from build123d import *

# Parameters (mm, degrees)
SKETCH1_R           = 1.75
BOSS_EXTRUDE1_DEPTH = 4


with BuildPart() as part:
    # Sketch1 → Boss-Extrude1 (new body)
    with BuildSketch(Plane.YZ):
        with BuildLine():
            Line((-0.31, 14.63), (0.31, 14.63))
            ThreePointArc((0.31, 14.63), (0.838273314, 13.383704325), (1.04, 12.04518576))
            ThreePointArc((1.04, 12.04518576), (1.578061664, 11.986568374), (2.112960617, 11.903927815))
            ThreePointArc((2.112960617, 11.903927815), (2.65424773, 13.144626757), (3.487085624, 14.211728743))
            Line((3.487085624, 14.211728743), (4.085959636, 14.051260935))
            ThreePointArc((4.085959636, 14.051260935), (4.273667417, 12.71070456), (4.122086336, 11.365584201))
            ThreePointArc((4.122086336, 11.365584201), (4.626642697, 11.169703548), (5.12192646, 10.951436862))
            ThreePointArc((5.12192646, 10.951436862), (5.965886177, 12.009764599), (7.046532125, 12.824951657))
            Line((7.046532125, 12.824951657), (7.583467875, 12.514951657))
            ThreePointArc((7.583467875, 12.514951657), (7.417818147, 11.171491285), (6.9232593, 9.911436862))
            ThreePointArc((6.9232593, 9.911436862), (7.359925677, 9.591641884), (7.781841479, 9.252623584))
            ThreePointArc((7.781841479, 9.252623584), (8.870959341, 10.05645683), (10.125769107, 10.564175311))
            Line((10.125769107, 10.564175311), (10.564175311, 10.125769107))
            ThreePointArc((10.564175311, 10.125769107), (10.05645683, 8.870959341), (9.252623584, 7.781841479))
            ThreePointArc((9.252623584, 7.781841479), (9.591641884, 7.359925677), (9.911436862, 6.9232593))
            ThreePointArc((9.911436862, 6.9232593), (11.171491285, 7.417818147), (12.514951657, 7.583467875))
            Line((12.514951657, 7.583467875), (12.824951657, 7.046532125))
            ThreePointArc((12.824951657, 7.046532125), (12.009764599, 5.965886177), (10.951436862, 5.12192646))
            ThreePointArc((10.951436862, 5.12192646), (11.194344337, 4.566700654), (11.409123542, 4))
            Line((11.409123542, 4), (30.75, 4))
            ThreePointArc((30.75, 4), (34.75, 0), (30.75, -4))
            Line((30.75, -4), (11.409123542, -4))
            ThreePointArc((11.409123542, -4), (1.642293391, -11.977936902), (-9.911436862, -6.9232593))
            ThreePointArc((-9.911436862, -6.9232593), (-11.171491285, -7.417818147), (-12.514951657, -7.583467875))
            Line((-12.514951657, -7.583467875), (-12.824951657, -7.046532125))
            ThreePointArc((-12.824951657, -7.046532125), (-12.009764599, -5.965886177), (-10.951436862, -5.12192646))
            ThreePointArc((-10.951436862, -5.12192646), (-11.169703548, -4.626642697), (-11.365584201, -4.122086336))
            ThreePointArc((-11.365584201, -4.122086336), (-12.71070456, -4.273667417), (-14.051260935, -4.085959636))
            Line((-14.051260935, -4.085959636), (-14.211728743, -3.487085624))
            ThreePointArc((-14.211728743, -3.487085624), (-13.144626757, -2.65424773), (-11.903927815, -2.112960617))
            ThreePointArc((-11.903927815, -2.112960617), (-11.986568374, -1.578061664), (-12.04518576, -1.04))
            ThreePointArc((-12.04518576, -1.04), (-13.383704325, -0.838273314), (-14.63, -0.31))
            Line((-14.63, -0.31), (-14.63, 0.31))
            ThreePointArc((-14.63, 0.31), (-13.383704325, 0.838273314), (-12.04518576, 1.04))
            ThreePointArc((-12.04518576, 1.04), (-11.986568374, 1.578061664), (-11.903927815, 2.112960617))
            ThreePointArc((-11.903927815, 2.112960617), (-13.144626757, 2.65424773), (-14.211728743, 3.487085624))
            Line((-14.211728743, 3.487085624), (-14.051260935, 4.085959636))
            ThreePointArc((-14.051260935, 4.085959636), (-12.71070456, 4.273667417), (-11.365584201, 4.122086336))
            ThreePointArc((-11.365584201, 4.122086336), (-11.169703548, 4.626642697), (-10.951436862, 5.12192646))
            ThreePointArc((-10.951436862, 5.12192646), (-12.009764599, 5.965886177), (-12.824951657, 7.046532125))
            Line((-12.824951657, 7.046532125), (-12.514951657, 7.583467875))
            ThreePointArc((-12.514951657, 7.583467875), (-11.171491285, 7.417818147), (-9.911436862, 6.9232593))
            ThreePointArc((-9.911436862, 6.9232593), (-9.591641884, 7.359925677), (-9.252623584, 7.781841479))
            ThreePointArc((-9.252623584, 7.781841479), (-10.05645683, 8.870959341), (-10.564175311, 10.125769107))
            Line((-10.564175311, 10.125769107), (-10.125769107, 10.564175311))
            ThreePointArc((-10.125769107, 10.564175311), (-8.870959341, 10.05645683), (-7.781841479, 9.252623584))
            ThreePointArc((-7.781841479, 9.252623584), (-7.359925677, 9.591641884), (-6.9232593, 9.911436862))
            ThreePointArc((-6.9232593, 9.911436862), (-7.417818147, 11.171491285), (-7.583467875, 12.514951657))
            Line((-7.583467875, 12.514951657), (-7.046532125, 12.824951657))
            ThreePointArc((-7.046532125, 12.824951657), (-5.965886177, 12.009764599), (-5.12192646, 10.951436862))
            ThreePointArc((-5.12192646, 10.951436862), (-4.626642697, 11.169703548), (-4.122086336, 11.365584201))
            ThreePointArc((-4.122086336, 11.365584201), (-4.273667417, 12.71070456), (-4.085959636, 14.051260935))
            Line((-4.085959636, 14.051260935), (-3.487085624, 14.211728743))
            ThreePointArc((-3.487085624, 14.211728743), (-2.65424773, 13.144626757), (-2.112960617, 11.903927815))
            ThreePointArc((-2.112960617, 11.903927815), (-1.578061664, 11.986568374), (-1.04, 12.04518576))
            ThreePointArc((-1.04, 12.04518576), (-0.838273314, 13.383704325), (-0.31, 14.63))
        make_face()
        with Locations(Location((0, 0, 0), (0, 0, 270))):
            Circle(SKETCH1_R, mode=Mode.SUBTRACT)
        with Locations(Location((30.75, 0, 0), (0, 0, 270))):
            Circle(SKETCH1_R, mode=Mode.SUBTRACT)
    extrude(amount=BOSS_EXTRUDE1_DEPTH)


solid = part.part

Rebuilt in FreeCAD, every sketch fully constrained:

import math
import FreeCAD as App
import Part
import Sketcher
from FreeCAD import Vector
Q = App.Units.Quantity

doc = App.newDocument("Part")
body = doc.addObject("PartDesign::Body", "Body")

# Sketch on YZ plane
sketch1 = body.newObject("Sketcher::SketchObject", "Sketch")
sketch1.AttachmentSupport = (doc.getObject("YZ_Plane"), [""])
sketch1.MapMode = "FlatFace"
sketch1.addGeometry([
    Part.LineSegment(Vector(0.31, 14.63, 0), Vector(-0.31, 14.63, 0)),  # 0
    Part.ArcOfCircle(Part.Circle(Vector(4.358456, 11.916051, 0), Vector(0, 0, 1), 5.4), math.radians(149.828948), math.radians(178.629703)),  # 1
    Part.ArcOfCircle(Part.Circle(Vector(0, 0, 0), Vector(0, 0, 1), 12.09), math.radians(94.934768), math.radians(100.065232)),  # 2
    Part.ArcOfCircle(Part.Circle(Vector(-7.294046, 10.38197, 0), Vector(0, 0, 1), 5.4), math.radians(16.370297), math.radians(45.171052)),  # 3
    Part.LineSegment(Vector(-3.487086, 14.211729, 0), Vector(-4.08596, 14.051261, 0)),  # 4
    Part.ArcOfCircle(Part.Circle(Vector(1.125844, 12.638072, 0), Vector(0, 0, 1), 5.4), math.radians(164.828948), math.radians(193.629703)),  # 5
    Part.ArcOfCircle(Part.Circle(Vector(0, 0, 0), Vector(0, 0, 1), 12.09), math.radians(109.934768), math.radians(115.065232)),  # 6
    Part.ArcOfCircle(Part.Circle(Vector(-9.732559, 8.140375, 0), Vector(0, 0, 1), 5.4), math.radians(31.370297), math.radians(60.171052)),  # 7
    Part.LineSegment(Vector(-7.046532, 12.824952, 0), Vector(-7.583468, 12.514952, 0)),  # 8
    Part.ArcOfCircle(Part.Circle(Vector(-2.183492, 12.49883, 0), Vector(0, 0, 1), 5.4), math.radians(179.828948), math.radians(208.629703)),  # 9
    Part.ArcOfCircle(Part.Circle(Vector(0, 0, 0), Vector(0, 0, 1), 12.09), math.radians(124.934768), math.radians(130.065232)),  # 10
    Part.ArcOfCircle(Part.Circle(Vector(-11.507814, 5.344027, 0), Vector(0, 0, 1), 5.4), math.radians(46.370297), math.radians(75.171052)),  # 11
    Part.LineSegment(Vector(-10.125769, 10.564175, 0), Vector(-10.564175, 10.125769, 0)),  # 12
    Part.ArcOfCircle(Part.Circle(Vector(-5.344027, 11.507814, 0), Vector(0, 0, 1), 5.4), math.radians(-165.171052), math.radians(-136.370297)),  # 13
    Part.ArcOfCircle(Part.Circle(Vector(0, 0, 0), Vector(0, 0, 1), 12.09), math.radians(139.934768), math.radians(145.065232)),  # 14
    Part.ArcOfCircle(Part.Circle(Vector(-12.49883, 2.183492, 0), Vector(0, 0, 1), 5.4), math.radians(61.370297), math.radians(90.171052)),  # 15
    Part.LineSegment(Vector(-12.514952, 7.583468, 0), Vector(-12.824952, 7.046532, 0)),  # 16
    Part.ArcOfCircle(Part.Circle(Vector(-8.140375, 9.732559, 0), Vector(0, 0, 1), 5.4), math.radians(-150.171052), math.radians(-121.370297)),  # 17
    Part.ArcOfCircle(Part.Circle(Vector(0, 0, 0), Vector(0, 0, 1), 12.09), math.radians(154.934768), math.radians(160.065232)),  # 18
    Part.ArcOfCircle(Part.Circle(Vector(-12.638072, -1.125844, 0), Vector(0, 0, 1), 5.4), math.radians(76.370297), math.radians(105.171052)),  # 19
    Part.LineSegment(Vector(-14.051261, 4.08596, 0), Vector(-14.211729, 3.487086, 0)),  # 20
    Part.ArcOfCircle(Part.Circle(Vector(-10.38197, 7.294046, 0), Vector(0, 0, 1), 5.4), math.radians(-135.171052), math.radians(-106.370297)),  # 21
    Part.ArcOfCircle(Part.Circle(Vector(0, 0, 0), Vector(0, 0, 1), 12.09), math.radians(169.934768), math.radians(175.065232)),  # 22
    Part.ArcOfCircle(Part.Circle(Vector(-11.916051, -4.358456, 0), Vector(0, 0, 1), 5.4), math.radians(91.370297), math.radians(120.171052)),  # 23
    Part.LineSegment(Vector(-14.63, 0.31, 0), Vector(-14.63, -0.31, 0)),  # 24
    Part.ArcOfCircle(Part.Circle(Vector(-11.916051, 4.358456, 0), Vector(0, 0, 1), 5.4), math.radians(-120.171052), math.radians(-91.370297)),  # 25
    Part.ArcOfCircle(Part.Circle(Vector(0, 0, 0), Vector(0, 0, 1), 12.09), math.radians(-175.065232), math.radians(-169.934768)),  # 26
    Part.ArcOfCircle(Part.Circle(Vector(-10.38197, -7.294046, 0), Vector(0, 0, 1), 5.4), math.radians(106.370297), math.radians(135.171052)),  # 27
    Part.LineSegment(Vector(-14.211729, -3.487086, 0), Vector(-14.051261, -4.08596, 0)),  # 28
    Part.ArcOfCircle(Part.Circle(Vector(-12.638072, 1.125844, 0), Vector(0, 0, 1), 5.4), math.radians(-105.171052), math.radians(-76.370297)),  # 29
    Part.ArcOfCircle(Part.Circle(Vector(0, 0, 0), Vector(0, 0, 1), 12.09), math.radians(-160.065232), math.radians(-154.934768)),  # 30
    Part.ArcOfCircle(Part.Circle(Vector(-8.140375, -9.732559, 0), Vector(0, 0, 1), 5.4), math.radians(121.370297), math.radians(150.171052)),  # 31
    Part.LineSegment(Vector(-12.824952, -7.046532, 0), Vector(-12.514952, -7.583468, 0)),  # 32
    Part.ArcOfCircle(Part.Circle(Vector(-12.49883, -2.183492, 0), Vector(0, 0, 1), 5.4), math.radians(-90.171052), math.radians(-61.370297)),  # 33
    Part.ArcOfCircle(Part.Circle(Vector(0, 0, 0), Vector(0, 0, 1), 12.09), math.radians(-145.065232), math.radians(-19.320493)),  # 34
    Part.LineSegment(Vector(11.409124, -4, 0), Vector(30.75, -4, 0)),  # 35
    Part.ArcOfCircle(Part.Circle(Vector(30.75, 0, 0), Vector(0, 0, 1), 4), math.radians(-90), math.radians(90)),  # 36
    Part.LineSegment(Vector(30.75, 4, 0), Vector(11.409124, 4, 0)),  # 37
    Part.ArcOfCircle(Part.Circle(Vector(0, 0, 0), Vector(0, 0, 1), 12.09), math.radians(19.320493), math.radians(25.065232)),  # 38
    Part.ArcOfCircle(Part.Circle(Vector(8.140375, 9.732559, 0), Vector(0, 0, 1), 5.4), math.radians(-58.629703), math.radians(-29.828948)),  # 39
    Part.LineSegment(Vector(12.824952, 7.046532, 0), Vector(12.514952, 7.583468, 0)),  # 40
    Part.ArcOfCircle(Part.Circle(Vector(12.49883, 2.183492, 0), Vector(0, 0, 1), 5.4), math.radians(89.828948), math.radians(118.629703)),  # 41
    Part.ArcOfCircle(Part.Circle(Vector(0, 0, 0), Vector(0, 0, 1), 12.09), math.radians(34.934768), math.radians(40.065232)),  # 42
    Part.ArcOfCircle(Part.Circle(Vector(5.344027, 11.507814, 0), Vector(0, 0, 1), 5.4), math.radians(-43.629703), math.radians(-14.828948)),  # 43
    Part.LineSegment(Vector(10.564175, 10.125769, 0), Vector(10.125769, 10.564175, 0)),  # 44
    Part.ArcOfCircle(Part.Circle(Vector(11.507814, 5.344027, 0), Vector(0, 0, 1), 5.4), math.radians(104.828948), math.radians(133.629703)),  # 45
    Part.ArcOfCircle(Part.Circle(Vector(0, 0, 0), Vector(0, 0, 1), 12.09), math.radians(49.934768), math.radians(55.065232)),  # 46
    Part.ArcOfCircle(Part.Circle(Vector(2.183492, 12.49883, 0), Vector(0, 0, 1), 5.4), math.radians(-28.629703), math.radians(0.171052)),  # 47
    Part.LineSegment(Vector(7.583468, 12.514952, 0), Vector(7.046532, 12.824952, 0)),  # 48
    Part.ArcOfCircle(Part.Circle(Vector(9.732559, 8.140375, 0), Vector(0, 0, 1), 5.4), math.radians(119.828948), math.radians(148.629703)),  # 49
    Part.ArcOfCircle(Part.Circle(Vector(0, 0, 0), Vector(0, 0, 1), 12.09), math.radians(64.934768), math.radians(70.065232)),  # 50
    Part.ArcOfCircle(Part.Circle(Vector(-1.125844, 12.638072, 0), Vector(0, 0, 1), 5.4), math.radians(-13.629703), math.radians(15.171052)),  # 51
    Part.LineSegment(Vector(4.08596, 14.051261, 0), Vector(3.487086, 14.211729, 0)),  # 52
    Part.ArcOfCircle(Part.Circle(Vector(7.294046, 10.38197, 0), Vector(0, 0, 1), 5.4), math.radians(134.828948), math.radians(163.629703)),  # 53
    Part.ArcOfCircle(Part.Circle(Vector(0, 0, 0), Vector(0, 0, 1), 12.09), math.radians(79.934768), math.radians(85.065232)),  # 54
    Part.ArcOfCircle(Part.Circle(Vector(-4.358456, 11.916051, 0), Vector(0, 0, 1), 5.4), math.radians(1.370297), math.radians(30.171052)),  # 55
    Part.Circle(Vector(30.75, 0, 0), Vector(0, 0, 1), 1.75),  # 56
    Part.Circle(Vector(0, 0, 0), Vector(0, 0, 1), 1.75),  # 57
], False)
sketch1.addConstraint([
    Sketcher.Constraint("Coincident", 0, 2, 1, 1),
    Sketcher.Constraint("Coincident", 1, 2, 2, 1),
    Sketcher.Constraint("Coincident", 2, 2, 3, 1),
    Sketcher.Constraint("Coincident", 3, 2, 4, 1),
    Sketcher.Constraint("Coincident", 4, 2, 5, 1),
    Sketcher.Constraint("Coincident", 5, 2, 6, 1),
    Sketcher.Constraint("Coincident", 6, 2, 7, 1),
    Sketcher.Constraint("Coincident", 7, 2, 8, 1),
    Sketcher.Constraint("Coincident", 8, 2, 9, 1),
    Sketcher.Constraint("Coincident", 9, 2, 10, 1),
    Sketcher.Constraint("Coincident", 10, 2, 11, 1),
    Sketcher.Constraint("Coincident", 11, 2, 12, 1),
    Sketcher.Constraint("Coincident", 12, 2, 13, 1),
    Sketcher.Constraint("Coincident", 13, 2, 14, 1),
    Sketcher.Constraint("Coincident", 14, 2, 15, 1),
    Sketcher.Constraint("Coincident", 15, 2, 16, 1),
    Sketcher.Constraint("Coincident", 16, 2, 17, 1),
    Sketcher.Constraint("Coincident", 17, 2, 18, 1),
    Sketcher.Constraint("Coincident", 18, 2, 19, 1),
    Sketcher.Constraint("Coincident", 19, 2, 20, 1),
    Sketcher.Constraint("Coincident", 20, 2, 21, 1),
    Sketcher.Constraint("Coincident", 21, 2, 22, 1),
    Sketcher.Constraint("Coincident", 22, 2, 23, 1),
    Sketcher.Constraint("Coincident", 23, 2, 24, 1),
    Sketcher.Constraint("Coincident", 24, 2, 25, 1),
    Sketcher.Constraint("Coincident", 25, 2, 26, 1),
    Sketcher.Constraint("Coincident", 26, 2, 27, 1),
    Sketcher.Constraint("Coincident", 27, 2, 28, 1),
    Sketcher.Constraint("Coincident", 28, 2, 29, 1),
    Sketcher.Constraint("Coincident", 29, 2, 30, 1),
    Sketcher.Constraint("Coincident", 30, 2, 31, 1),
    Sketcher.Constraint("Coincident", 31, 2, 32, 1),
    Sketcher.Constraint("Coincident", 32, 2, 33, 1),
    Sketcher.Constraint("Coincident", 33, 2, 34, 1),
    Sketcher.Constraint("Coincident", 34, 2, 35, 1),
    Sketcher.Constraint("Tangent", 35, 2, 36, 1),
    Sketcher.Constraint("Tangent", 36, 2, 37, 1),
    Sketcher.Constraint("Coincident", 37, 2, 38, 1),
    Sketcher.Constraint("Coincident", 38, 2, 39, 1),
    Sketcher.Constraint("Coincident", 39, 2, 40, 1),
    Sketcher.Constraint("Coincident", 40, 2, 41, 1),
    Sketcher.Constraint("Coincident", 41, 2, 42, 1),
    Sketcher.Constraint("Coincident", 42, 2, 43, 1),
    Sketcher.Constraint("Coincident", 43, 2, 44, 1),
    Sketcher.Constraint("Coincident", 44, 2, 45, 1),
    Sketcher.Constraint("Coincident", 45, 2, 46, 1),
    Sketcher.Constraint("Coincident", 46, 2, 47, 1),
    Sketcher.Constraint("Coincident", 47, 2, 48, 1),
    Sketcher.Constraint("Coincident", 48, 2, 49, 1),
    Sketcher.Constraint("Coincident", 49, 2, 50, 1),
    Sketcher.Constraint("Coincident", 50, 2, 51, 1),
    Sketcher.Constraint("Coincident", 51, 2, 52, 1),
    Sketcher.Constraint("Coincident", 52, 2, 53, 1),
    Sketcher.Constraint("Coincident", 53, 2, 54, 1),
    Sketcher.Constraint("Coincident", 54, 2, 55, 1),
    Sketcher.Constraint("Coincident", 55, 2, 0, 1),
    Sketcher.Constraint("Horizontal", 0),
    Sketcher.Constraint("Vertical", 24),
    Sketcher.Constraint("Horizontal", 35),
    Sketcher.Constraint("Horizontal", 37),
    Sketcher.Constraint("Coincident", 2, 3, -1, 1),
    Sketcher.Constraint("Coincident", 6, 3, -1, 1),
    Sketcher.Constraint("Coincident", 10, 3, -1, 1),
    Sketcher.Constraint("Coincident", 14, 3, -1, 1),
    Sketcher.Constraint("Coincident", 18, 3, -1, 1),
    Sketcher.Constraint("Coincident", 22, 3, -1, 1),
    Sketcher.Constraint("Coincident", 26, 3, -1, 1),
    Sketcher.Constraint("Coincident", 30, 3, -1, 1),
    Sketcher.Constraint("Coincident", 34, 3, -1, 1),
    Sketcher.Constraint("Coincident", 38, 3, -1, 1),
    Sketcher.Constraint("Coincident", 42, 3, -1, 1),
    Sketcher.Constraint("Coincident", 46, 3, -1, 1),
    Sketcher.Constraint("Coincident", 50, 3, -1, 1),
    Sketcher.Constraint("Coincident", 54, 3, -1, 1),
    Sketcher.Constraint("Coincident", 57, 3, -1, 1),
    Sketcher.Constraint("Coincident", 56, 3, 36, 3),
    Sketcher.Constraint("Equal", 1, 3),
    Sketcher.Constraint("Equal", 3, 5),
    Sketcher.Constraint("Equal", 2, 6),
    Sketcher.Constraint("Equal", 5, 7),
    Sketcher.Constraint("Equal", 7, 9),
    Sketcher.Constraint("Equal", 6, 10),
    Sketcher.Constraint("Equal", 9, 11),
    Sketcher.Constraint("Equal", 11, 13),
    Sketcher.Constraint("Equal", 10, 14),
    Sketcher.Constraint("Equal", 13, 15),
    Sketcher.Constraint("Equal", 15, 17),
    Sketcher.Constraint("Equal", 14, 18),
    Sketcher.Constraint("Equal", 17, 19),
    Sketcher.Constraint("Equal", 19, 21),
    Sketcher.Constraint("Equal", 18, 22),
    Sketcher.Constraint("Equal", 21, 23),
    Sketcher.Constraint("Equal", 23, 25),
    Sketcher.Constraint("Equal", 22, 26),
    Sketcher.Constraint("Equal", 25, 27),
    Sketcher.Constraint("Equal", 27, 29),
    Sketcher.Constraint("Equal", 26, 30),
    Sketcher.Constraint("Equal", 29, 31),
    Sketcher.Constraint("Equal", 31, 33),
    Sketcher.Constraint("Equal", 30, 34),
    Sketcher.Constraint("Equal", 34, 38),
    Sketcher.Constraint("Equal", 33, 39),
    Sketcher.Constraint("Equal", 39, 41),
    Sketcher.Constraint("Equal", 38, 42),
    Sketcher.Constraint("Equal", 41, 43),
    Sketcher.Constraint("Equal", 43, 45),
    Sketcher.Constraint("Equal", 42, 46),
    Sketcher.Constraint("Equal", 45, 47),
    Sketcher.Constraint("Equal", 47, 49),
    Sketcher.Constraint("Equal", 46, 50),
    Sketcher.Constraint("Equal", 49, 51),
    Sketcher.Constraint("Equal", 51, 53),
    Sketcher.Constraint("Equal", 50, 54),
    Sketcher.Constraint("Equal", 53, 55),
    Sketcher.Constraint("Equal", 56, 57),
    Sketcher.Constraint("Symmetric", 31, 3, 39, 3, -1, 1),
    Sketcher.Constraint("Symmetric", 33, 3, 41, 3, -1, 1),
    Sketcher.Constraint("Symmetric", 17, 3, 39, 3, -2),
    Sketcher.Constraint("Symmetric", 15, 3, 41, 3, -2),
    Sketcher.Constraint("Symmetric", 13, 3, 43, 3, -2),
    Sketcher.Constraint("Symmetric", 11, 3, 45, 3, -2),
    Sketcher.Constraint("Symmetric", 9, 3, 47, 3, -2),
    Sketcher.Constraint("Symmetric", 7, 3, 49, 3, -2),
    Sketcher.Constraint("Symmetric", 5, 3, 51, 3, -2),
    Sketcher.Constraint("Symmetric", 3, 3, 53, 3, -2),
    Sketcher.Constraint("Symmetric", 1, 3, 55, 3, -2),
    Sketcher.Constraint("Symmetric", 23, 3, 25, 3, -1),
    Sketcher.Constraint("Symmetric", 21, 3, 27, 3, -1),
    Sketcher.Constraint("Symmetric", 19, 3, 29, 3, -1),
    Sketcher.Constraint("PointOnObject", 36, 3, -1),
    Sketcher.Constraint("Perpendicular", 4, 28),
    Sketcher.Constraint("Perpendicular", 8, 32),
    Sketcher.Constraint("Parallel", 32, 40),
    Sketcher.Constraint("Perpendicular", 12, 44),
    Sketcher.Constraint("Perpendicular", 16, 48),
    Sketcher.Constraint("Perpendicular", 20, 52),
    Sketcher.Constraint("Horizontal", 16, 2, 39, 2),
    Sketcher.Constraint("Horizontal", 12, 2, 43, 2),
    Sketcher.Constraint("Horizontal", 11, 2, 44, 2),
    Sketcher.Constraint("Horizontal", 8, 2, 47, 2),
    Sketcher.Constraint("Horizontal", 7, 2, 48, 2),
    Sketcher.Constraint("Horizontal", 4, 2, 51, 2),
    Sketcher.Constraint("Horizontal", 3, 2, 52, 2),
    Sketcher.Constraint("Vertical", 20, 2, 27, 2),
    Sketcher.Constraint("Vertical", 16, 2, 31, 2),
    Sketcher.Constraint("Equal", 0, 24),
    Sketcher.Constraint("Equal", 4, 8),
    Sketcher.Constraint("Equal", 8, 12),
    Sketcher.Constraint("Equal", 12, 16),
    Sketcher.Constraint("Equal", 16, 20),
    Sketcher.Constraint("Radius", 36, Q("4 mm")),
    Sketcher.Constraint("Diameter", 56, Q("3.5 mm")),
    Sketcher.Constraint("Radius", 1, Q("5.4 mm")),
    Sketcher.Constraint("Angle", 4, Q("-165 deg")),
    Sketcher.Constraint("Angle", 8, Q("-150 deg")),
    Sketcher.Constraint("Radius", 2, Q("12.09 mm")),
    Sketcher.Constraint("DistanceX", 0, 2, 0, 1, Q("0.62 mm")),
    Sketcher.Constraint("Distance", 4, Q("0.62 mm")),
    Sketcher.Constraint("DistanceX", -1, 1, 36, 3, Q("30.75 mm")),
    Sketcher.Constraint("DistanceY", -1, 1, 0, 2, Q("14.63 mm")),
    Sketcher.Constraint("DistanceX", 1, 2, -1, 1, Q("1.04 mm")),
    Sketcher.Constraint("DistanceY", -1, 1, 22, 2, Q("1.04 mm")),
    Sketcher.Constraint("DistanceX", 23, 2, -1, 1, Q("14.63 mm")),
    Sketcher.Constraint("DistanceY", -1, 1, 3, 3, Q("10.38197 mm")),
    Sketcher.Constraint("DistanceX", 7, 3, -1, 1, Q("9.732559 mm")),
    Sketcher.Constraint("DistanceX", 9, 3, -1, 1, Q("2.183492 mm")),
    Sketcher.Constraint("DistanceY", -1, 1, 9, 3, Q("12.49883 mm")),
    Sketcher.Constraint("DistanceX", 15, 3, -1, 1, Q("12.49883 mm")),
    Sketcher.Constraint("DistanceY", -1, 1, 15, 3, Q("2.183492 mm")),
    Sketcher.Constraint("DistanceY", -1, 1, 17, 3, Q("9.732559 mm")),
    Sketcher.Constraint("DistanceX", 21, 3, -1, 1, Q("10.38197 mm")),
    Sketcher.Constraint("DistanceX", 2, 2, -1, 1, Q("2.112961 mm")),
    Sketcher.Constraint("DistanceY", -1, 1, 3, 2, Q("14.211729 mm")),
    Sketcher.Constraint("DistanceY", -1, 1, 7, 2, Q("12.824952 mm")),
    Sketcher.Constraint("DistanceX", 10, 2, -1, 1, Q("7.781841 mm")),
    Sketcher.Constraint("DistanceX", 11, 2, -1, 1, Q("10.125769 mm")),
    Sketcher.Constraint("DistanceY", -1, 1, 12, 2, Q("10.125769 mm")),
    Sketcher.Constraint("DistanceY", -1, 1, 13, 2, Q("7.781841 mm")),
    Sketcher.Constraint("DistanceX", 15, 2, -1, 1, Q("12.514952 mm")),
    Sketcher.Constraint("DistanceX", 19, 2, -1, 1, Q("14.051261 mm")),
    Sketcher.Constraint("DistanceY", -1, 1, 19, 2, Q("4.08596 mm")),
    Sketcher.Constraint("DistanceX", -1, 1, 5, 3, Q("1.125844 mm")),
    Sketcher.Constraint("DistanceX", 19, 3, -1, 1, Q("12.638072 mm")),
])
pad1 = body.newObject("PartDesign::Pad", "Pad")
pad1.Profile = sketch1
pad1.Length = 4

doc.recompute()
